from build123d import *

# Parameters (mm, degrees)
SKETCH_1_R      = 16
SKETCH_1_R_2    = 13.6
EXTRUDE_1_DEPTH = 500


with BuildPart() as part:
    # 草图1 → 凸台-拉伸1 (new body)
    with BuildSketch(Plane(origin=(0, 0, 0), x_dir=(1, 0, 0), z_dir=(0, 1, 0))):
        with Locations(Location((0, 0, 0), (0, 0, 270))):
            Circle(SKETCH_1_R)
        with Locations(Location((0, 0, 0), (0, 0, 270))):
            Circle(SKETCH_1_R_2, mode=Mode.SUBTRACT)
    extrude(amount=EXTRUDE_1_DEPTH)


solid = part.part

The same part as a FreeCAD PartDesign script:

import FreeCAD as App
import Part
import Sketcher

V = App.Vector
Q = App.Units.Quantity

doc = App.newDocument("Part")
body = doc.addObject("PartDesign::Body", "Body")

# Sketch on XZ plane
sketch1 = body.newObject("Sketcher::SketchObject", "Sketch")
sketch1.AttachmentSupport = (doc.getObject("XZ_Plane"), [""])
sketch1.MapMode = "FlatFace"
sketch1.addGeometry([
    Part.Circle(V(0, 0, 0), V(0, 0, 1), 16),
    Part.Circle(V(0, 0, 0), V(0, 0, 1), 14),
], False)
sketch1.addConstraint([
    Sketcher.Constraint("Coincident", 0, 3, -1, 1),
    Sketcher.Constraint("Coincident", 1, 3, -1, 1),
    Sketcher.Constraint("Diameter", 0, Q("32 mm")),
    Sketcher.Constraint("Diameter", 1, Q("27.2 mm")),
])
pad1 = body.newObject("PartDesign::Pad", "Pad")
pad1.Profile = sketch1
pad1.Length = 500
pad1.Reversed = True

doc.recompute()
